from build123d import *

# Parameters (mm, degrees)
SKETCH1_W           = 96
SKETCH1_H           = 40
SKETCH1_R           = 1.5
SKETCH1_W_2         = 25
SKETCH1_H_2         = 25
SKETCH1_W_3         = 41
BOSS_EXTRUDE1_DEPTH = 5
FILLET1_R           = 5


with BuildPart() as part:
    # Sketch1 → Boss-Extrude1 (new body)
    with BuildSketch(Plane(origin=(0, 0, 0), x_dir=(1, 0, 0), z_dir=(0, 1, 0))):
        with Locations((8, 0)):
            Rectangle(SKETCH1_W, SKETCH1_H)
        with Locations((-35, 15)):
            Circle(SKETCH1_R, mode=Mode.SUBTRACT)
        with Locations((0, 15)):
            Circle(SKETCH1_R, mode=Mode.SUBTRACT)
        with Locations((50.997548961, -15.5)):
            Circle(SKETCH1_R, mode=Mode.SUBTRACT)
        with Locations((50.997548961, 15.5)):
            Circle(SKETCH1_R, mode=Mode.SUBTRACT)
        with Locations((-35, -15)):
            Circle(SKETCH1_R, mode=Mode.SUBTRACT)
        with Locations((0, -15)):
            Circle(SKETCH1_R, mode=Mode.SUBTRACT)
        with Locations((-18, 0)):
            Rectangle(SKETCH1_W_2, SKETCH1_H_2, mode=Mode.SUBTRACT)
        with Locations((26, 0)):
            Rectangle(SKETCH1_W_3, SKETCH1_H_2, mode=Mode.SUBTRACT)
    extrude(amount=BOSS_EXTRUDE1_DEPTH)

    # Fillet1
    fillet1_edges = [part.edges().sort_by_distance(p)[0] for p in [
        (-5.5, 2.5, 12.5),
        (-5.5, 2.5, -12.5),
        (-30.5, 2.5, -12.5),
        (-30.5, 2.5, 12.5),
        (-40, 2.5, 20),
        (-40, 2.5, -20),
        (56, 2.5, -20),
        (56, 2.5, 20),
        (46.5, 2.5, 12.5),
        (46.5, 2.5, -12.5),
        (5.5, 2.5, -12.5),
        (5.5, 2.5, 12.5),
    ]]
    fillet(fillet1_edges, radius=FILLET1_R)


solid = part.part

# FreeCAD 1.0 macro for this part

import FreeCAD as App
import Part
import Sketcher
Q = App.Units.Quantity


def edges_at(feature, points):
    """Names of the edges that pass closest to the given points."""
    edges = feature.Shape.Edges
    near = lambda p: min(range(len(edges)), key=lambda i: edges[i].distToShape(Part.Vertex(*p))[0])
    return sorted({f"Edge{near(p) + 1}" for p in points})

doc = App.newDocument("Part")
params = doc.addObject("Spreadsheet::Sheet", "Params")
for row, (alias, value) in enumerate([
    ("sketch1_diameter", "3 mm"),
    ("sketch1_width", "96 mm"),
    ("sketch1_width2", "25 mm"),
    ("sketch1_width3", "41 mm"),
    ("sketch1_height", "40 mm"),
    ("pad1_length", "5 mm"),
    ("fillet_radius", "5 mm"),
], start=1):
    params.set(f"A{row}", alias)
    params.set(f"B{row}", "=" + value)
    params.setAlias(f"B{row}", alias)

body = doc.addObject("PartDesign::Body", "Body")

# Sketch on XZ plane
sketch1 = body.newObject("Sketcher::SketchObject", "Sketch")
sketch1.AttachmentSupport = (doc.getObject("XZ_Plane"), [""])
sketch1.MapMode = "FlatFace"
sketch1.addGeometry(Part.LineSegment(App.Vector(-40, -20, 0), App.Vector(-40, 20, 0)), False)
sketch1.addGeometry(Part.LineSegment(App.Vector(-40, 20, 0), App.Vector(56, 20, 0)), False)
sketch1.addGeometry(Part.LineSegment(App.Vector(56, 20, 0), App.Vector(56, -20, 0)), False)
sketch1.addGeometry(Part.LineSegment(App.Vector(56, -20, 0), App.Vector(-40, -20, 0)), False)
sketch1.addGeometry(Part.Circle(App.Vector(-35, 15, 0), App.Vector(0, 0, 1), 1.5), False)
sketch1.addGeometry(Part.Circle(App.Vector(0, 15, 0), App.Vector(0, 0, 1), 1.5), False)
sketch1.addGeometry(Part.Circle(App.Vector(50.997549, 15.5, 0), App.Vector(0, 0, 1), 1.5), False)
sketch1.addGeometry(Part.LineSegment(App.Vector(-5.5, 12.5, 0), App.Vector(-30.5, 12.5, 0)), False)
sketch1.addGeometry(Part.LineSegment(App.Vector(-30.5, 12.5, 0), App.Vector(-30.5, -12.5, 0)), False)
sketch1.addGeometry(Part.LineSegment(App.Vector(-30.5, -12.5, 0), App.Vector(-5.5, -12.5, 0)), False)
sketch1.addGeometry(Part.LineSegment(App.Vector(-5.5, -12.5, 0), App.Vector(-5.5, 12.5, 0)), False)
sketch1.addGeometry(Part.Circle(App.Vector(-35, -15, 0), App.Vector(0, 0, 1), 1.5), False)
sketch1.addGeometry(Part.Circle(App.Vector(0, -15, 0), App.Vector(0, 0, 1), 1.5), False)
sketch1.addGeometry(Part.LineSegment(App.Vector(46.5, 12.5, 0), App.Vector(5.5, 12.5, 0)), False)
sketch1.addGeometry(Part.LineSegment(App.Vector(5.5, 12.5, 0), App.Vector(5.5, -12.5, 0)), False)
sketch1.addGeometry(Part.LineSegment(App.Vector(5.5, -12.5, 0), App.Vector(46.5, -12.5, 0)), False)
sketch1.addGeometry(Part.LineSegment(App.Vector(46.5, -12.5, 0), App.Vector(46.5, 12.5, 0)), False)
sketch1.addGeometry(Part.Circle(App.Vector(50.997549, -15.5, 0), App.Vector(0, 0, 1), 1.5), False)
sketch1.addConstraint(Sketcher.Constraint("Coincident", 0, 2, 1, 1))
sketch1.addConstraint(Sketcher.Constraint("Coincident", 1, 2, 2, 1))
sketch1.addConstraint(Sketcher.Constraint("Coincident", 2, 2, 3, 1))
sketch1.addConstraint(Sketcher.Constraint("Coincident", 3, 2, 0, 1))
sketch1.addConstraint(Sketcher.Constraint("Coincident", 7, 2, 8, 1))
sketch1.addConstraint(Sketcher.Constraint("Coincident", 8, 2, 9, 1))
sketch1.addConstraint(Sketcher.Constraint("Coincident", 9, 2, 10, 1))
sketch1.addConstraint(Sketcher.Constraint("Coincident", 10, 2, 7, 1))
sketch1.addConstraint(Sketcher.Constraint("Coincident", 13, 2, 14, 1))
sketch1.addConstraint(Sketcher.Constraint("Coincident", 14, 2, 15, 1))
sketch1.addConstraint(Sketcher.Constraint("Coincident", 15, 2, 16, 1))
sketch1.addConstraint(Sketcher.Constraint("Coincident", 16, 2, 13, 1))
sketch1.addConstraint(Sketcher.Constraint("Vertical", 0))
sketch1.addConstraint(Sketcher.Constraint("Horizontal", 1))
sketch1.addConstraint(Sketcher.Constraint("Vertical", 2))
sketch1.addConstraint(Sketcher.Constraint("Horizontal", 3))
sketch1.addConstraint(Sketcher.Constraint("Horizontal", 7))
sketch1.addConstraint(Sketcher.Constraint("Vertical", 8))
sketch1.addConstraint(Sketcher.Constraint("Horizontal", 9))
sketch1.addConstraint(Sketcher.Constraint("Vertical", 10))
sketch1.addConstraint(Sketcher.Constraint("Horizontal", 13))
sketch1.addConstraint(Sketcher.Constraint("Vertical", 14))
sketch1.addConstraint(Sketcher.Constraint("Horizontal", 15))
sketch1.addConstraint(Sketcher.Constraint("Vertical", 16))
sketch1.addConstraint(Sketcher.Constraint("Equal", 4, 5))
sketch1.addConstraint(Sketcher.Constraint("Equal", 5, 6))
sketch1.addConstraint(Sketcher.Constraint("Equal", 6, 11))
sketch1.addConstraint(Sketcher.Constraint("Equal", 11, 12))
sketch1.addConstraint(Sketcher.Constraint("Equal", 12, 17))
sketch1.addConstraint(Sketcher.Constraint("Symmetric", 5, 3, 12, 3, -1, 1))
sketch1.addConstraint(Sketcher.Constraint("Symmetric", 9, 2, 13, 2, -1, 1))
sketch1.addConstraint(Sketcher.Constraint("Symmetric", 4, 3, 11, 3, -1))
sketch1.addConstraint(Sketcher.Constraint("Symmetric", 6, 3, 17, 3, -1))
sketch1.addConstraint(Sketcher.Constraint("PointOnObject", 5, 3, -2))
sketch1.addConstraint(Sketcher.Constraint("Horizontal", 4, 3, 5, 3))
sketch1.addConstraint(Sketcher.Constraint("Horizontal", 10, 2, 13, 2))
sketch1.addConstraint(Sketcher.Constraint("Horizontal", 9, 2, 14, 2))
sketch1.addConstraint(Sketcher.Constraint("Equal", 9, 8))
sketch1.addConstraint(Sketcher.Constraint("Diameter", 4, Q("3 mm")))
sketch1.addConstraint(Sketcher.Constraint("DistanceX", 1, 1, 1, 2, Q("96 mm")))
sketch1.addConstraint(Sketcher.Constraint("DistanceX", 7, 2, 7, 1, Q("25 mm")))
sketch1.addConstraint(Sketcher.Constraint("DistanceX", 13, 2, 13, 1, Q("41 mm")))
sketch1.addConstraint(Sketcher.Constraint("DistanceY", 0, 1, 0, 2, Q("40 mm")))
sketch1.addConstraint(Sketcher.Constraint("DistanceX", 4, 3, -1, 1, Q("35 mm")))
sketch1.addConstraint(Sketcher.Constraint("DistanceY", -1, 1, 4, 3, Q("15 mm")))
sketch1.addConstraint(Sketcher.Constraint("DistanceX", 0, 2, -1, 1, Q("40 mm")))
sketch1.addConstraint(Sketcher.Constraint("DistanceY", -1, 1, 0, 2, Q("20 mm")))
sketch1.addConstraint(Sketcher.Constraint("DistanceY", 17, 3, 6, 3, Q("31 mm")))
sketch1.addConstraint(Sketcher.Constraint("DistanceX", 10, 2, 13, 2, Q("11 mm")))
sketch1.addConstraint(Sketcher.Constraint("DistanceX", -1, 1, 6, 3, Q("50.997549 mm")))
sketch1.setExpression("Constraints[38]", "Params.sketch1_diameter")
sketch1.setExpression("Constraints[39]", "Params.sketch1_width")
sketch1.setExpression("Constraints[40]", "Params.sketch1_width2")
sketch1.setExpression("Constraints[41]", "Params.sketch1_width3")
sketch1.setExpression("Constraints[42]", "Params.sketch1_height")
pad1 = body.newObject("PartDesign::Pad", "Pad")
pad1.Profile = sketch1
pad1.setExpression("Length", "Params.pad1_length")
pad1.Reversed = True
doc.recompute()

fillet = body.newObject("PartDesign::Fillet", "Fillet")
fillet.Base = (pad1, edges_at(pad1, [
    (-5.5, 2.5, 12.5),
    (-5.5, 2.5, -12.5),
    (-30.5, 2.5, -12.5),
    (-30.5, 2.5, 12.5),
    (-40, 2.5, 20),
    (-40, 2.5, -20),
    (56, 2.5, -20),
    (56, 2.5, 20),
    (46.5, 2.5, 12.5),
    (46.5, 2.5, -12.5),
    (5.5, 2.5, -12.5),
    (5.5, 2.5, 12.5),
]))
fillet.setExpression("Radius", "Params.fillet_radius")

doc.recompute()
